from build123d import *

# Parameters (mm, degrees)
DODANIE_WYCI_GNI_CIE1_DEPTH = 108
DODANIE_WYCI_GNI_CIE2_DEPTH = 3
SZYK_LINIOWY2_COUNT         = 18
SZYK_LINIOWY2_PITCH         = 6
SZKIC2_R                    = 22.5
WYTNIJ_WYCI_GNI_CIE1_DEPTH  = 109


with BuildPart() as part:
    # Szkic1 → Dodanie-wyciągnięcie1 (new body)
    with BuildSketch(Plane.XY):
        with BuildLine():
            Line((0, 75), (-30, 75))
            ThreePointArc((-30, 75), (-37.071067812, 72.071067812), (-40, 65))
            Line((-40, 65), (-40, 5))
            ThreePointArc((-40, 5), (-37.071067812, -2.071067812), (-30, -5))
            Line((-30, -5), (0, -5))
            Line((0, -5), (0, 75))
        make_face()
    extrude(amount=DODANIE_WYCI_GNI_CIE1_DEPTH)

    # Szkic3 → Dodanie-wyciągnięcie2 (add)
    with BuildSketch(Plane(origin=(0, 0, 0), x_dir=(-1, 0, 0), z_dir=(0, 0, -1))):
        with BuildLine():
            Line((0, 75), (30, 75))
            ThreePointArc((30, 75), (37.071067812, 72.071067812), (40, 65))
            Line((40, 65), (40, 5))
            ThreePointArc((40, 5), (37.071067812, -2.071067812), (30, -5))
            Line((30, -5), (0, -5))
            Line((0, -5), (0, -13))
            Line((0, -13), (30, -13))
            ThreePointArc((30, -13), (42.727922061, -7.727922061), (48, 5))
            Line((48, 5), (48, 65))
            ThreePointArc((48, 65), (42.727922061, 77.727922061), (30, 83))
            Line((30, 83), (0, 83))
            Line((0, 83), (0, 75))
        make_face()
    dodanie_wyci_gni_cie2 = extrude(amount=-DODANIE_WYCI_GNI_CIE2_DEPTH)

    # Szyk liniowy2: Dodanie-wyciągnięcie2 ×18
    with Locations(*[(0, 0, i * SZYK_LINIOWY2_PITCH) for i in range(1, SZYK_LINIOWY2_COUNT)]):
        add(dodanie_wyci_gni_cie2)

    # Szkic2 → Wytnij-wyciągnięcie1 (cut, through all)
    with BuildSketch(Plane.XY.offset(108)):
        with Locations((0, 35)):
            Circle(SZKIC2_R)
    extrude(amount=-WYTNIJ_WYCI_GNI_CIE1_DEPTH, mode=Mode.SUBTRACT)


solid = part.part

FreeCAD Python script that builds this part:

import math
import FreeCAD as App
import Part
import Sketcher
from FreeCAD import Vector
Q = App.Units.Quantity

doc = App.newDocument("Part")
body = doc.addObject("PartDesign::Body", "Body")

# Sketch on XY plane
sketch1 = body.newObject("Sketcher::SketchObject", "Sketch")
sketch1.AttachmentSupport = (doc.getObject("XY_Plane"), [""])
sketch1.MapMode = "FlatFace"
sketch1.addGeometry([
    Part.LineSegment(Vector(0, 75, 0), Vector(-30, 75, 0)),  # 0
    Part.ArcOfCircle(Part.Circle(Vector(-30, 65, 0), Vector(0, 0, 1), 10), math.radians(90), math.radians(180)),  # 1
    Part.LineSegment(Vector(-40, 65, 0), Vector(-40, 5, 0)),  # 2
    Part.ArcOfCircle(Part.Circle(Vector(-30, 5, 0), Vector(0, 0, 1), 10), math.radians(180), math.radians(270)),  # 3
    Part.LineSegment(Vector(-30, -5, 0), Vector(0, -5, 0)),  # 4
    Part.LineSegment(Vector(0, -5, 0), Vector(0, 75, 0)),  # 5
], False)
sketch1.addConstraint([
    Sketcher.Constraint("Tangent", 0, 2, 1, 1),
    Sketcher.Constraint("Tangent", 1, 2, 2, 1),
    Sketcher.Constraint("Tangent", 2, 2, 3, 1),
    Sketcher.Constraint("Tangent", 3, 2, 4, 1),
    Sketcher.Constraint("Coincident", 4, 2, 5, 1),
    Sketcher.Constraint("Coincident", 5, 2, 0, 1),
    Sketcher.Constraint("Horizontal", 0),
    Sketcher.Constraint("Vertical", 2),
    Sketcher.Constraint("Horizontal", 4),
    Sketcher.Constraint("Vertical", 5),
    Sketcher.Constraint("Equal", 1, 3),
    Sketcher.Constraint("PointOnObject", 4, 2, -2),
    Sketcher.Constraint("Radius", 1, Q("10 mm")),
    Sketcher.Constraint("DistanceX", 0, 2, 0, 1, Q("30 mm")),
    Sketcher.Constraint("DistanceY", 2, 2, 2, 1, Q("60 mm")),
    Sketcher.Constraint("DistanceY", -1, 1, 1, 3, Q("65 mm")),
])
pad1 = body.newObject("PartDesign::Pad", "Pad")
pad1.Profile = sketch1
pad1.Length = 108

# Sketch on XY plane
sketch2 = body.newObject("Sketcher::SketchObject", "Sketch001")
sketch2.AttachmentSupport = (doc.getObject("XY_Plane"), [""])
sketch2.MapMode = "FlatFace"
sketch2.addGeometry([
    Part.LineSegment(Vector(0, 75, 0), Vector(-30, 75, 0)),  # 0
    Part.ArcOfCircle(Part.Circle(Vector(-30, 65, 0), Vector(0, 0, 1), 10), math.radians(90), math.radians(180)),  # 1
    Part.LineSegment(Vector(-40, 65, 0), Vector(-40, 5, 0)),  # 2
    Part.ArcOfCircle(Part.Circle(Vector(-30, 5, 0), Vector(0, 0, 1), 10), math.radians(180), math.radians(270)),  # 3
    Part.LineSegment(Vector(-30, -5, 0), Vector(0, -5, 0)),  # 4
    Part.LineSegment(Vector(0, -5, 0), Vector(0, -13, 0)),  # 5
    Part.LineSegment(Vector(0, -13, 0), Vector(-30, -13, 0)),  # 6
    Part.ArcOfCircle(Part.Circle(Vector(-30, 5, 0), Vector(0, 0, 1), 18), math.radians(-180), math.radians(-90)),  # 7
    Part.LineSegment(Vector(-48, 5, 0), Vector(-48, 65, 0)),  # 8
    Part.ArcOfCircle(Part.Circle(Vector(-30, 65, 0), Vector(0, 0, 1), 18), math.radians(90), math.radians(180)),  # 9
    Part.LineSegment(Vector(-30, 83, 0), Vector(0, 83, 0)),  # 10
    Part.LineSegment(Vector(0, 83, 0), Vector(0, 75, 0)),  # 11
], False)
sketch2.addConstraint([
    Sketcher.Constraint("Tangent", 0, 2, 1, 1),
    Sketcher.Constraint("Tangent", 1, 2, 2, 1),
    Sketcher.Constraint("Tangent", 2, 2, 3, 1),
    Sketcher.Constraint("Tangent", 3, 2, 4, 1),
    Sketcher.Constraint("Coincident", 4, 2, 5, 1),
    Sketcher.Constraint("Coincident", 5, 2, 6, 1),
    Sketcher.Constraint("Tangent", 6, 2, 7, 2),
    Sketcher.Constraint("Tangent", 7, 1, 8, 1),
    Sketcher.Constraint("Tangent", 8, 2, 9, 2),
    Sketcher.Constraint("Tangent", 9, 1, 10, 1),
    Sketcher.Constraint("Coincident", 10, 2, 11, 1),
    Sketcher.Constraint("Coincident", 11, 2, 0, 1),
    Sketcher.Constraint("Horizontal", 0),
    Sketcher.Constraint("Vertical", 2),
    Sketcher.Constraint("Horizontal", 4),
    Sketcher.Constraint("Vertical", 5),
    Sketcher.Constraint("Horizontal", 6),
    Sketcher.Constraint("Vertical", 8),
    Sketcher.Constraint("Horizontal", 10),
    Sketcher.Constraint("Vertical", 11),
    Sketcher.Constraint("Coincident", 7, 3, 3, 3),
    Sketcher.Constraint("Coincident", 9, 3, 1, 3),
    Sketcher.Constraint("Equal", 1, 3),
    Sketcher.Constraint("PointOnObject", 4, 2, -2),
    Sketcher.Constraint("PointOnObject", 10, 2, -2),
    Sketcher.Constraint("Radius", 1, Q("10 mm")),
    Sketcher.Constraint("Radius", 7, Q("18 mm")),
    Sketcher.Constraint("DistanceX", 0, 2, 0, 1, Q("30 mm")),
    Sketcher.Constraint("DistanceY", 2, 2, 2, 1, Q("60 mm")),
    Sketcher.Constraint("DistanceY", -1, 1, 1, 3, Q("65 mm")),
])
pad2 = body.newObject("PartDesign::Pad", "Pad001")
pad2.Profile = sketch2
pad2.Length = 3
doc.recompute()

linearpattern = body.newObject("PartDesign::LinearPattern", "LinearPattern")
linearpattern.Originals = [pad2]
linearpattern.Direction = (doc.getObject("Z_Axis"), [""])
linearpattern.Mode = "offset"
linearpattern.Offset = 6
linearpattern.Occurrences = 18
body.Tip = linearpattern

# Sketch on XY plane
sketch3 = body.newObject("Sketcher::SketchObject", "Sketch002")
sketch3.AttachmentSupport = (doc.getObject("XY_Plane"), [""])
sketch3.MapMode = "FlatFace"
sketch3.AttachmentOffset = App.Placement(Vector(0, 0, 108), App.Rotation())
sketch3.addGeometry(Part.Circle(Vector(0, 35, 0), Vector(0, 0, 1), 22), False)
sketch3.addConstraint([
    Sketcher.Constraint("PointOnObject", 0, 3, -2),
    Sketcher.Constraint("Diameter", 0, Q("45 mm")),
    Sketcher.Constraint("DistanceY", -1, 1, 0, 3, Q("35 mm")),
])
pocket1 = body.newObject("PartDesign::Pocket", "Pocket")
pocket1.Profile = sketch3
pocket1.Type = "ThroughAll"

doc.recompute()
